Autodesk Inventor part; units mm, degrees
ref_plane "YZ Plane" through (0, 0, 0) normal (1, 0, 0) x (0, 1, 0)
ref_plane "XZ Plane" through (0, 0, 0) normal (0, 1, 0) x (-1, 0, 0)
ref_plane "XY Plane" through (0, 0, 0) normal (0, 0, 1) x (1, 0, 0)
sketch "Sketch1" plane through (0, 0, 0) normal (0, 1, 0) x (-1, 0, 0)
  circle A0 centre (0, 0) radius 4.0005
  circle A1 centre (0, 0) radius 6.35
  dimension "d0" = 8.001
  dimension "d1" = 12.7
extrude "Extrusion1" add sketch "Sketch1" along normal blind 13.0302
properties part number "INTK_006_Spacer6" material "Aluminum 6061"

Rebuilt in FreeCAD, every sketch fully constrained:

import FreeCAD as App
import Part
import Sketcher
from FreeCAD import Vector
Q = App.Units.Quantity

doc = App.newDocument("Part")
body = doc.addObject("PartDesign::Body", "Body")

# Sketch on XZ plane
sketch1 = body.newObject("Sketcher::SketchObject", "Sketch")
sketch1.AttachmentSupport = (doc.getObject("XZ_Plane"), [""])
sketch1.MapMode = "FlatFace"
sketch1.addGeometry([
    Part.Circle(Vector(0, 0, 0), Vector(0, 0, 1), 6.3),
    Part.Circle(Vector(0, 0, 0), Vector(0, 0, 1), 4),
], False)
sketch1.addConstraint([
    Sketcher.Constraint("Coincident", 0, 3, -1, 1),
    Sketcher.Constraint("Coincident", 1, 3, -1, 1),
    Sketcher.Constraint("Diameter", 0, Q("0.5 in")),
    Sketcher.Constraint("Diameter", 1, Q("0.315 in")),
])
pad1 = body.newObject("PartDesign::Pad", "Pad")
pad1.Profile = sketch1
pad1.Length = Q("0.513 in")
pad1.Reversed = True

doc.recompute()
